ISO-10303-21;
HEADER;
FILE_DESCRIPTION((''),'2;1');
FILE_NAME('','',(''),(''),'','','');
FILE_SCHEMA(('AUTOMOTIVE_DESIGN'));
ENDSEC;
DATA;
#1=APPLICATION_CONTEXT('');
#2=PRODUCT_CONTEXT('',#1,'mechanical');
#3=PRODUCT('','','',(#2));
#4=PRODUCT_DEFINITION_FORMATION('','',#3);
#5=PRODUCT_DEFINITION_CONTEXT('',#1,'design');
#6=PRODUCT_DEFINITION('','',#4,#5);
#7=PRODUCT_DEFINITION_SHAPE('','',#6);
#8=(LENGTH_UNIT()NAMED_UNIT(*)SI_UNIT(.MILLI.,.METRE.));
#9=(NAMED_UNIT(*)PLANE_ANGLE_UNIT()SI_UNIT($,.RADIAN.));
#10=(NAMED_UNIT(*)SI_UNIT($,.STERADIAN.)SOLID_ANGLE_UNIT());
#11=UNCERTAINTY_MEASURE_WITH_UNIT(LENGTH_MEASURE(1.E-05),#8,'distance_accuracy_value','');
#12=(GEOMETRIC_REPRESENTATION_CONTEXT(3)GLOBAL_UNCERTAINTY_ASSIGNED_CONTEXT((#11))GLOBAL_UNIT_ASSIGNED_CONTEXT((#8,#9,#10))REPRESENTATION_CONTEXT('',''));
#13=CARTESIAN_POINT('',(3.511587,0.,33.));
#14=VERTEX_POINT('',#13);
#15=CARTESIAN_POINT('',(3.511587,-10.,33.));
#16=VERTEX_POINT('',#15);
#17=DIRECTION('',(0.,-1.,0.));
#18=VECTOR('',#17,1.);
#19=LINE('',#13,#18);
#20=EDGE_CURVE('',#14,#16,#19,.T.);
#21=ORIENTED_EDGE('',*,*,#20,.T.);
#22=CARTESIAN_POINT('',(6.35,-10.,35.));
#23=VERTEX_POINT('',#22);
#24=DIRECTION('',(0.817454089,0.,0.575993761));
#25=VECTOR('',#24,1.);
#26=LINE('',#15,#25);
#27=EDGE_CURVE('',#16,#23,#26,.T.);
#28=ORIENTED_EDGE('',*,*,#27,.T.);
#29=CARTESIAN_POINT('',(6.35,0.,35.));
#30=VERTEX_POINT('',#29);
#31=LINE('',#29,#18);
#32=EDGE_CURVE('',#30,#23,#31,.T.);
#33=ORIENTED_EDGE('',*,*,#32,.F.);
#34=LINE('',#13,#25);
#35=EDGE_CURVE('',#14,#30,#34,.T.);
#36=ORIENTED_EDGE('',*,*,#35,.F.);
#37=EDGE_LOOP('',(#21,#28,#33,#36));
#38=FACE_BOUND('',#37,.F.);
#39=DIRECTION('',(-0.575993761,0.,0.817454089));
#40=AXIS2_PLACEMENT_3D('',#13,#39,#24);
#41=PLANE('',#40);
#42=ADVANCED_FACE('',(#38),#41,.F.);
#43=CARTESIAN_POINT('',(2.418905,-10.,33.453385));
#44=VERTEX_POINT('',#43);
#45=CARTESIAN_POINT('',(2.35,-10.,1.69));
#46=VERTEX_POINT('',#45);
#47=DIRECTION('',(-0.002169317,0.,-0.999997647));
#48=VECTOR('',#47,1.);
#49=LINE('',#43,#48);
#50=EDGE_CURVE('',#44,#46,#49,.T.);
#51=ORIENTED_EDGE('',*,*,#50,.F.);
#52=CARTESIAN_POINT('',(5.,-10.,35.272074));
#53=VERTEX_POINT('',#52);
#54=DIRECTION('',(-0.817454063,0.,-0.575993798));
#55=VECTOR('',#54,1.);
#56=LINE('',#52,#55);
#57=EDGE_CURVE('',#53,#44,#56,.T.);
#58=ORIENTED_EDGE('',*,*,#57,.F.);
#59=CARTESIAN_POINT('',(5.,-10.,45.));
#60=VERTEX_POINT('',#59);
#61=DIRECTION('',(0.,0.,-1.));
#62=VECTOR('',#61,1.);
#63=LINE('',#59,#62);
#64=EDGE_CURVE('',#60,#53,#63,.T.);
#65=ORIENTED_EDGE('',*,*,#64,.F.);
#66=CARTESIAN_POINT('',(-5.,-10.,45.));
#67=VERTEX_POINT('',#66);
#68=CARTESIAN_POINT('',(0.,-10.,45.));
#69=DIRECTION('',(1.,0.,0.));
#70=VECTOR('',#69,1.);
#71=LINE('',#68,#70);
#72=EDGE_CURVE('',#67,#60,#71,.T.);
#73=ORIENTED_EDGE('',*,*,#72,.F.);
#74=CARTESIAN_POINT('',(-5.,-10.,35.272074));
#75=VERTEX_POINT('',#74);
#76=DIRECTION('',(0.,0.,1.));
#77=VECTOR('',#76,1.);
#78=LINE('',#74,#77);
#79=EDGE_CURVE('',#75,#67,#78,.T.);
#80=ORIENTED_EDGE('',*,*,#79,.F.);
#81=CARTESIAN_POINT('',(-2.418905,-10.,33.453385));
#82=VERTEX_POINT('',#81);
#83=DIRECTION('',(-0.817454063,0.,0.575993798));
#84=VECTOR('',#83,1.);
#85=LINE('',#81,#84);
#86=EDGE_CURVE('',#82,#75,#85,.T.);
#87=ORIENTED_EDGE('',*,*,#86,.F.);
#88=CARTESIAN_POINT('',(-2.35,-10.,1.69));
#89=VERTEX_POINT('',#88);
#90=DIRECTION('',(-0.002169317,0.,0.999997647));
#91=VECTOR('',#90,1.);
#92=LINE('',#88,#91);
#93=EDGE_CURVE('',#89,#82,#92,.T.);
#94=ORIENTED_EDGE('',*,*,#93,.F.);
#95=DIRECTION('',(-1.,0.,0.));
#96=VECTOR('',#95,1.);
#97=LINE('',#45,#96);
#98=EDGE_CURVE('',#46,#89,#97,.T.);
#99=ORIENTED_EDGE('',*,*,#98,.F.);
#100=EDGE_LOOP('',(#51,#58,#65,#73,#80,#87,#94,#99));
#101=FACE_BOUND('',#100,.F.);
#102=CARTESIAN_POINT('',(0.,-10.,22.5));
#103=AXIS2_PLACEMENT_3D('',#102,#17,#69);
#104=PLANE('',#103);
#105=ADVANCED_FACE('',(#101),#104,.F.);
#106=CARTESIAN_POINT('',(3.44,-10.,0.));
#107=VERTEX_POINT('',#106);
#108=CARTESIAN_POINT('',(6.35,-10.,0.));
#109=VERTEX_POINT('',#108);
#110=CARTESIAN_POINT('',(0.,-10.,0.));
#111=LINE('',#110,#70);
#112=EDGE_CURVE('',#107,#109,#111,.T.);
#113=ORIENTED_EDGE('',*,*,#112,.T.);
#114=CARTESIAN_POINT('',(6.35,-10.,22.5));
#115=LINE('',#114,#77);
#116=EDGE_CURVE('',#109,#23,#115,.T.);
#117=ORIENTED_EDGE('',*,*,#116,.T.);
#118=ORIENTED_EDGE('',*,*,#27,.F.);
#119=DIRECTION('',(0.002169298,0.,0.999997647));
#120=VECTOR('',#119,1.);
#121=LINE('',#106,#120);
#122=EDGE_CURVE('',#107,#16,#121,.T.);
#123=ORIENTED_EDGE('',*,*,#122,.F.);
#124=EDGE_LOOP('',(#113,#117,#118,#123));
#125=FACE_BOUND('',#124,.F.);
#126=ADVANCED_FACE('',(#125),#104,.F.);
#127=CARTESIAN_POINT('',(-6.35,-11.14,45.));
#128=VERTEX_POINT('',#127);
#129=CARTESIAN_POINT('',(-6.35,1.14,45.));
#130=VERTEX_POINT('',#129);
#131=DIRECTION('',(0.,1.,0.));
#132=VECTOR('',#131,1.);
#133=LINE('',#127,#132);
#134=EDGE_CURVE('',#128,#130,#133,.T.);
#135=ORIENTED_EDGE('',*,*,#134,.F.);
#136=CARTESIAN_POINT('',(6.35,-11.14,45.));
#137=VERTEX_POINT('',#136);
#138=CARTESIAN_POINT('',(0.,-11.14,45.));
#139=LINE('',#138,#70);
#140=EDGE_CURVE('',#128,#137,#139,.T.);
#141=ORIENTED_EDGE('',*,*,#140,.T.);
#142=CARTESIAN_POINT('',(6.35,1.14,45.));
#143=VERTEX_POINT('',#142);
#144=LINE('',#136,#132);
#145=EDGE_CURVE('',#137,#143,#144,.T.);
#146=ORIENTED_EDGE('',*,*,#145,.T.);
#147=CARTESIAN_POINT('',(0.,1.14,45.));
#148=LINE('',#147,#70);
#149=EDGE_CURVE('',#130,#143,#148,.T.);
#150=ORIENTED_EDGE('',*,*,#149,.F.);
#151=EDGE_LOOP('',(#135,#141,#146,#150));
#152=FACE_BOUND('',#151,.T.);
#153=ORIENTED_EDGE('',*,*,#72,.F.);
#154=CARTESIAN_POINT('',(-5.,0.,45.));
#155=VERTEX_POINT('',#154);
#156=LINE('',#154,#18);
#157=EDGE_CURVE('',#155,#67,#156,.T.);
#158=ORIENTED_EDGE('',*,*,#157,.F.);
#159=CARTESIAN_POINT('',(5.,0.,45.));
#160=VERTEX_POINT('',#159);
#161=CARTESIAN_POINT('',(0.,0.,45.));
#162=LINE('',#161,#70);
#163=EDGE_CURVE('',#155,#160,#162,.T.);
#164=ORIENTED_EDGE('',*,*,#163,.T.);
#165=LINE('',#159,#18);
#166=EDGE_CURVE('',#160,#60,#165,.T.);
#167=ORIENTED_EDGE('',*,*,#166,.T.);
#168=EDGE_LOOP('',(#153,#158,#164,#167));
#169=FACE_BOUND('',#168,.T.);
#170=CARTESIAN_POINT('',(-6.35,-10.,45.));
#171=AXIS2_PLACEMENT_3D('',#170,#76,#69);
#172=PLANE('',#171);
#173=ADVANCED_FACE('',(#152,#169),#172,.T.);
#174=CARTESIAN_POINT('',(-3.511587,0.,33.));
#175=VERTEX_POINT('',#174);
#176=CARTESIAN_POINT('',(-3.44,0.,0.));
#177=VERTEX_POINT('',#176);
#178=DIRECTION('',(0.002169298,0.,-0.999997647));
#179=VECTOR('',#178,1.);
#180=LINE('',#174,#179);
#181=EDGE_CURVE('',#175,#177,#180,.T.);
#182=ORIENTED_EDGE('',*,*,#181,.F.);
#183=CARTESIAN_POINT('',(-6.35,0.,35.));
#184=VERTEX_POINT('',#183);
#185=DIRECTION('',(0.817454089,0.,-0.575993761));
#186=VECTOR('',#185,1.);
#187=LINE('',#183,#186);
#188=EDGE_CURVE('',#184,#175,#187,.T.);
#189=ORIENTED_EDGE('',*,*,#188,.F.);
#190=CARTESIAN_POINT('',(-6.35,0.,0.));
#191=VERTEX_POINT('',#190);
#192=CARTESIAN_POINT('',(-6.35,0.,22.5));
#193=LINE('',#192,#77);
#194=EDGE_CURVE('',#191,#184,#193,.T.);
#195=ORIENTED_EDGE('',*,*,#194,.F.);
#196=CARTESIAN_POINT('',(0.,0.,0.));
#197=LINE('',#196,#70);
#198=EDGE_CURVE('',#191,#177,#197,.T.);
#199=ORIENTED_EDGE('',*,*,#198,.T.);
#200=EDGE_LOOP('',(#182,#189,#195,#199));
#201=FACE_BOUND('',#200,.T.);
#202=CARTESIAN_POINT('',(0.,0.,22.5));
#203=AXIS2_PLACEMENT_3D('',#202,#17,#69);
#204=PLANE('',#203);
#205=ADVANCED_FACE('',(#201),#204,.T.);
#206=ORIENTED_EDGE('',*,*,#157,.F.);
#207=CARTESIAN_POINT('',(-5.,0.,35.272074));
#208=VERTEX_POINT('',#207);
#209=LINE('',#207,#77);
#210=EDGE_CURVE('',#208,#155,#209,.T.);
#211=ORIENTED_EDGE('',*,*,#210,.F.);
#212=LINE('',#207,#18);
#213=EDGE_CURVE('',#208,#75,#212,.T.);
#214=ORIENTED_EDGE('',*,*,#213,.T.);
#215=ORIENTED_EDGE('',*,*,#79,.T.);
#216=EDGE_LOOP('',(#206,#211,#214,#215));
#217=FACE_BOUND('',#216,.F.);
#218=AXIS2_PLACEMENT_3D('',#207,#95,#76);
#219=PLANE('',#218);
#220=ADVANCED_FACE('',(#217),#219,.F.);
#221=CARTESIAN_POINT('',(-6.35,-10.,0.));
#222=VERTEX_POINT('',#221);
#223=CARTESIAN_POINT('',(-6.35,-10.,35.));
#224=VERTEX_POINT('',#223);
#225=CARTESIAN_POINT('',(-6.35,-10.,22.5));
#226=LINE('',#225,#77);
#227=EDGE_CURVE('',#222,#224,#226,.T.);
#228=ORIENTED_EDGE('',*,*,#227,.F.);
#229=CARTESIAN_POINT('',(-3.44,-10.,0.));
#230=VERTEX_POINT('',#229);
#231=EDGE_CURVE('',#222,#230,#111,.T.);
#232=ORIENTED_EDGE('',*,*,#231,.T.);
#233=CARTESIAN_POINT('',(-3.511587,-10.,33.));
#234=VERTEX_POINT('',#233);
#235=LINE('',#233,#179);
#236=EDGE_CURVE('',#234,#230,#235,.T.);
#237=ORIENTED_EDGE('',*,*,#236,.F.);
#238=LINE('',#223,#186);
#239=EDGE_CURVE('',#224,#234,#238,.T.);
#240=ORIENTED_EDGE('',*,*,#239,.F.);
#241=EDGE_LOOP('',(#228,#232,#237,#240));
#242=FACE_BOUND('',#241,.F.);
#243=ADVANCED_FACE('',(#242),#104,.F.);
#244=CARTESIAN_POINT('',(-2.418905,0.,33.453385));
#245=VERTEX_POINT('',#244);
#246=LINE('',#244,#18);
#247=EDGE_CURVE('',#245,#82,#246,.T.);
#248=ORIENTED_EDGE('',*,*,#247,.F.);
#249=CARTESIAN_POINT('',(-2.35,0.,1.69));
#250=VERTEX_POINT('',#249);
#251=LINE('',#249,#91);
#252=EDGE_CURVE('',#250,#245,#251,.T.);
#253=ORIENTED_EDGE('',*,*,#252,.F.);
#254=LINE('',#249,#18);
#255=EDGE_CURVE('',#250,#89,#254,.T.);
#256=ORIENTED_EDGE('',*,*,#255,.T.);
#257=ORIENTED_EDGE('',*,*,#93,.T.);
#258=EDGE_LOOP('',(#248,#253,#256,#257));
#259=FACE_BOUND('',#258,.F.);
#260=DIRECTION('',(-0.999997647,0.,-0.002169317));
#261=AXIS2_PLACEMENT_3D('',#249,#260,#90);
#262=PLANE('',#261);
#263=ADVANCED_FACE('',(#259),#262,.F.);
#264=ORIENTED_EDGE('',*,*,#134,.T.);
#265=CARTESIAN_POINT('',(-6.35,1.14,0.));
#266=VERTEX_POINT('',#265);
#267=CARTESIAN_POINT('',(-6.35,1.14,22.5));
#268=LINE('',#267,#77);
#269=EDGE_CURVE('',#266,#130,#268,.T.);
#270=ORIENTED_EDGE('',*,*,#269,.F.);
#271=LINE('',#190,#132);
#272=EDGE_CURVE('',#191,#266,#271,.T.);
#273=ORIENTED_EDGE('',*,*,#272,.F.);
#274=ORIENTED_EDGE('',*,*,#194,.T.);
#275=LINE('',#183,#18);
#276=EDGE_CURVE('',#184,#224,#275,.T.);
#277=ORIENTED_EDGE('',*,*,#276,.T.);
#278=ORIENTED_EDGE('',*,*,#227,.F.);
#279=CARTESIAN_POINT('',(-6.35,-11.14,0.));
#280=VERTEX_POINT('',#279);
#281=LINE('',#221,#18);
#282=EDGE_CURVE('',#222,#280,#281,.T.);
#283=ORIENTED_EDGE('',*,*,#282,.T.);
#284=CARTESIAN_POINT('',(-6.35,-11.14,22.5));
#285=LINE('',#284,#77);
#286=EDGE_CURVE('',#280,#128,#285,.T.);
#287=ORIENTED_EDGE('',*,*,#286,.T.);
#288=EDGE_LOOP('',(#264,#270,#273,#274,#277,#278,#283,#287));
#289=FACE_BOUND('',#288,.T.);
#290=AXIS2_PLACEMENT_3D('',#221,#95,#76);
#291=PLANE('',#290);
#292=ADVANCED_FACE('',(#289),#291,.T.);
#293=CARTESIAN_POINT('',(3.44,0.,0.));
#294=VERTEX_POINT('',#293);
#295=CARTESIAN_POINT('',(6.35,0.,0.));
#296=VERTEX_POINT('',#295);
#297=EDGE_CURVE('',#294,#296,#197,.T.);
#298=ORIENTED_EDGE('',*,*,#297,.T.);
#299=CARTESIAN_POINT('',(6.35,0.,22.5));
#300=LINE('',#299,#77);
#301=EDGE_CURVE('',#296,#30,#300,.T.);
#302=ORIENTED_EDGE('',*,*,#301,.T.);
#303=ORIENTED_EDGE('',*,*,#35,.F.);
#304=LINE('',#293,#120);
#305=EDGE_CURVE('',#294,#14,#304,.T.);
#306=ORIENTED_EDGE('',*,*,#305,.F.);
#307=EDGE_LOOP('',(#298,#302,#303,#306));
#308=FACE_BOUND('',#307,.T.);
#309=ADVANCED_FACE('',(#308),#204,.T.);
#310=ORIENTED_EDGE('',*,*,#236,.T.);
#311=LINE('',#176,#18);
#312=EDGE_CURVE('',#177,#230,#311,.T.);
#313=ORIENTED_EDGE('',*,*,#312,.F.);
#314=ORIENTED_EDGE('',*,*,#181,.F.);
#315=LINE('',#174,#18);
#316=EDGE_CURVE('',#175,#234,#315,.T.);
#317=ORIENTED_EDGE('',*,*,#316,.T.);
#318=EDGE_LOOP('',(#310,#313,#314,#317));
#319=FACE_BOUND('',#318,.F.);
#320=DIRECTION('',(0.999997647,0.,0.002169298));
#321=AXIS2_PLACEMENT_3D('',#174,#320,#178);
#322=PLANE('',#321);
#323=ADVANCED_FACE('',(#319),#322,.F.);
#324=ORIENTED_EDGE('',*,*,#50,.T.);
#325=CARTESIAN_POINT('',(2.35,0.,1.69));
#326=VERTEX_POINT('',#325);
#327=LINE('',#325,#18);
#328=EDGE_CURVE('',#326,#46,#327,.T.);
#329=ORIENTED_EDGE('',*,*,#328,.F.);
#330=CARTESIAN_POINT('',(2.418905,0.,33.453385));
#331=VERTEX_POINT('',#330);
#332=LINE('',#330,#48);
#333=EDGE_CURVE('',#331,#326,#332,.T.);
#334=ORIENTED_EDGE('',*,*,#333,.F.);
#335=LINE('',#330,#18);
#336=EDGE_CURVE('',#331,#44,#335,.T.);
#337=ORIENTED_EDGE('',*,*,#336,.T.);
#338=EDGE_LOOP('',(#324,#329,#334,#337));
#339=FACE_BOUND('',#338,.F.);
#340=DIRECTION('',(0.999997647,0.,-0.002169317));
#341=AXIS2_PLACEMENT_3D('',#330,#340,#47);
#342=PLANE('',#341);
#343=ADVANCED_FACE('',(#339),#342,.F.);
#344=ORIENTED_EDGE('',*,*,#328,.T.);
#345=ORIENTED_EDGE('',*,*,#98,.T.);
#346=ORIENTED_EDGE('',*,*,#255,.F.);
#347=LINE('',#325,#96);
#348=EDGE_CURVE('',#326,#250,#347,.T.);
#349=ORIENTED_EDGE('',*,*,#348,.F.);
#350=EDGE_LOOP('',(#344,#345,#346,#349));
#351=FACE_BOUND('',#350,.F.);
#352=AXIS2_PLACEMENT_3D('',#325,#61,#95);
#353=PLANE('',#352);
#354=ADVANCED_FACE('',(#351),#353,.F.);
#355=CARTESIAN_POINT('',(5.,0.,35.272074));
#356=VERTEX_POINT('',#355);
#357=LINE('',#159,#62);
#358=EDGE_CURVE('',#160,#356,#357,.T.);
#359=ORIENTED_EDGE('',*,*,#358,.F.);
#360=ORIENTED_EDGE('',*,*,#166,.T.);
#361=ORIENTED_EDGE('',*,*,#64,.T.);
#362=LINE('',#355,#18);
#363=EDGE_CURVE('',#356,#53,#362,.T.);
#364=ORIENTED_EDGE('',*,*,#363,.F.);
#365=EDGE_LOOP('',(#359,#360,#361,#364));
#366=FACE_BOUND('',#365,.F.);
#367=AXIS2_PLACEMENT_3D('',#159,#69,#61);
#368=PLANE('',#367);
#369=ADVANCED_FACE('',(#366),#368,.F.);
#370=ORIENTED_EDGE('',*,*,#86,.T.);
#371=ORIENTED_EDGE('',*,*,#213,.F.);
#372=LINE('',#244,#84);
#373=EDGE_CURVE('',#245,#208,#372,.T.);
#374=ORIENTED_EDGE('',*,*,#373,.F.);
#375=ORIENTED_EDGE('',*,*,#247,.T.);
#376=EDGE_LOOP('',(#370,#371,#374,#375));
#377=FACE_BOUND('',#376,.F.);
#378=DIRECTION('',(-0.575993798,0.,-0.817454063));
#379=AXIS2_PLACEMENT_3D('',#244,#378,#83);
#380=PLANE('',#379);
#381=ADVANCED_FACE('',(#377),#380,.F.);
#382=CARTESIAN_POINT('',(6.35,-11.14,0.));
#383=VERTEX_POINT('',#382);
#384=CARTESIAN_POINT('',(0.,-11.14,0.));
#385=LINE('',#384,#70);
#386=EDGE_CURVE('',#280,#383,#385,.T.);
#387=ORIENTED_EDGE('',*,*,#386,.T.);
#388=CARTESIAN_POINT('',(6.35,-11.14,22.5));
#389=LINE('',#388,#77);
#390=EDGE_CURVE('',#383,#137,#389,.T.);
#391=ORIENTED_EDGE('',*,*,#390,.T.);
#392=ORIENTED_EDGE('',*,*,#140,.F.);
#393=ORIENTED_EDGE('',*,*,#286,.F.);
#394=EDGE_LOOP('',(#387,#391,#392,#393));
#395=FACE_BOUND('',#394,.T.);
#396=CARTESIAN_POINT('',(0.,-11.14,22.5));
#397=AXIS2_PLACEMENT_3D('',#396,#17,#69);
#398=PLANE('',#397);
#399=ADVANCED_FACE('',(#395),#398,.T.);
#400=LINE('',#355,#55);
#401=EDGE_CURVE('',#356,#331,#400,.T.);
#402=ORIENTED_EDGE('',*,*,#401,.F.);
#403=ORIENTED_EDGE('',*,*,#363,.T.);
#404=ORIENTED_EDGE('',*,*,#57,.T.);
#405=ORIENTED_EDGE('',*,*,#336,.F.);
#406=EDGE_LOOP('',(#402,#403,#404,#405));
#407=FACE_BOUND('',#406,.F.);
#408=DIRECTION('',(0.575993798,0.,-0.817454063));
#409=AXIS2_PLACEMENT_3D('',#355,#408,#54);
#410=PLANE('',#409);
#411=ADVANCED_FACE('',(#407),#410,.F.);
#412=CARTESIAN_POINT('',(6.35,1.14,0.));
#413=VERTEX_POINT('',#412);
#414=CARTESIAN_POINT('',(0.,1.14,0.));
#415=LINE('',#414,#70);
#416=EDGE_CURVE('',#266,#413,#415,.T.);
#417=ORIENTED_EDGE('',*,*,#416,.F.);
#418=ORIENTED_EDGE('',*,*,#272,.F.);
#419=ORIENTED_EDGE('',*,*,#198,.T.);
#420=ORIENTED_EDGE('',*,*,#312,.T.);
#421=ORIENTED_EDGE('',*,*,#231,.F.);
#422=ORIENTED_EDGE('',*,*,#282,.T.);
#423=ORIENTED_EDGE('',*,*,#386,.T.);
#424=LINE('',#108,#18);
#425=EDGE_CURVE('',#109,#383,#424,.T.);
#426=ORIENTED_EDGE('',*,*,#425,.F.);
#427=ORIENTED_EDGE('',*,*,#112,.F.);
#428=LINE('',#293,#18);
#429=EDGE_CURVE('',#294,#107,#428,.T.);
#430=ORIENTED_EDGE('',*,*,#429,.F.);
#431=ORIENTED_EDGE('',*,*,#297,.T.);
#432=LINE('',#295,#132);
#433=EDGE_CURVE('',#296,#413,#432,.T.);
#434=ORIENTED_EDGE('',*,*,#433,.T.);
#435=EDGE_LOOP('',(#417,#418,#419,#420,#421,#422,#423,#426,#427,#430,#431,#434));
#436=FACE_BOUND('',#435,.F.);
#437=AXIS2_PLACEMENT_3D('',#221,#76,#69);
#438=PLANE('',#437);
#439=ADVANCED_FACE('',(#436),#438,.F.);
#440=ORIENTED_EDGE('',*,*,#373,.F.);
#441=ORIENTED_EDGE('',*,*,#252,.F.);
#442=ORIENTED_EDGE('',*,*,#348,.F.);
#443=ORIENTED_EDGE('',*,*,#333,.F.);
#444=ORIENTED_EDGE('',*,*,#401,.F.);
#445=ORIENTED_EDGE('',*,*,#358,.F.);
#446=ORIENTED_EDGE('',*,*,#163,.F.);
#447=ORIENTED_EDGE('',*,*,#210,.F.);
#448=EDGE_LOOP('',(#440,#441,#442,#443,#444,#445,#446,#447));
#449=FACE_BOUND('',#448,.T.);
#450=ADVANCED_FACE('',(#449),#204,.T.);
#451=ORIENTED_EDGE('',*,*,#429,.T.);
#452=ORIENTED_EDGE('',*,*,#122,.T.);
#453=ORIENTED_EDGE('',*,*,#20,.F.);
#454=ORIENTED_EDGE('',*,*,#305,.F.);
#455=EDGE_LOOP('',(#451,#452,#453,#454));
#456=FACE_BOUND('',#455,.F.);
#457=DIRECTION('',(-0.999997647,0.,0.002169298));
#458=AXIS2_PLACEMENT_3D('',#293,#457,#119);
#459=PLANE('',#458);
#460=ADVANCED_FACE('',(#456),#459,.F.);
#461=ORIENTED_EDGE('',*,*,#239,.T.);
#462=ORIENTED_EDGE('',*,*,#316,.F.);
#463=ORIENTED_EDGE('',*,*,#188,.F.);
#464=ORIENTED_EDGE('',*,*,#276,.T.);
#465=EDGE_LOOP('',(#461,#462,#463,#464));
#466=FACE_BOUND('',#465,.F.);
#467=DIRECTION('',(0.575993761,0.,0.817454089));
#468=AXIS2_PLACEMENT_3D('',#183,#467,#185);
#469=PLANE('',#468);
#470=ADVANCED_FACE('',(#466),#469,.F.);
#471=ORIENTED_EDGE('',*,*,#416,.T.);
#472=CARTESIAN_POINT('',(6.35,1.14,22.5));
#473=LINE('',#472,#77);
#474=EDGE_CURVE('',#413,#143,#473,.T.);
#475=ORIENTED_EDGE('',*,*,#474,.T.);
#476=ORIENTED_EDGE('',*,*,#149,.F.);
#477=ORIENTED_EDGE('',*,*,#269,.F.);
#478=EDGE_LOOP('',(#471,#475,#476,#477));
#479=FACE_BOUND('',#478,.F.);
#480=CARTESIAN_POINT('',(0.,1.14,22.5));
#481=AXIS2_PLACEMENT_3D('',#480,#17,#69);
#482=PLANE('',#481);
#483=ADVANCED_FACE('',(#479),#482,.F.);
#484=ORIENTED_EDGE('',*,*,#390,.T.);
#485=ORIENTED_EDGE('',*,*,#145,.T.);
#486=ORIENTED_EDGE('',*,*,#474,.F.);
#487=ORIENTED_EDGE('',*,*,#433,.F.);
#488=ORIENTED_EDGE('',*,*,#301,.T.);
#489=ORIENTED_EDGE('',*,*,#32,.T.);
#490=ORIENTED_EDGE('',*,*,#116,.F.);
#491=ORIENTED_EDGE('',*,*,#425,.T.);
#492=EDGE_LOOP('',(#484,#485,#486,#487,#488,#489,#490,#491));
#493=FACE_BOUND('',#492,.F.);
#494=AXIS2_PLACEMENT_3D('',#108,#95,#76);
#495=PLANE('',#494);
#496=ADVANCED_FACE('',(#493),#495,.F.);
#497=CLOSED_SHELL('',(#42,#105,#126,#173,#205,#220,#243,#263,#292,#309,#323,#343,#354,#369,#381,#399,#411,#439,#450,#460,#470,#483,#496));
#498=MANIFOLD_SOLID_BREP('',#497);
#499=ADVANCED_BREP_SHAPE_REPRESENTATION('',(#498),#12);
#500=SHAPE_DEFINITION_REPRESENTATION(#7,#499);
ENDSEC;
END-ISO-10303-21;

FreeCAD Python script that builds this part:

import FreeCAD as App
import Part
import Sketcher


def add_polygon(sketch, points):
    """Adds a closed chain of lines whose ends are joined by coincident constraints."""
    first, n = sketch.GeometryCount, len(points)
    for a, b in zip(points, points[1:] + points[:1]):
        sketch.addGeometry(Part.LineSegment(App.Vector(*a, 0), App.Vector(*b, 0)), False)
    for i in range(n):
        sketch.addConstraint(Sketcher.Constraint("Coincident", first + i, 2, first + (i + 1) % n, 1))

doc = App.newDocument("Part")
body = doc.addObject("PartDesign::Body", "Body")

# Sketch on XZ plane
sketch1 = doc.addObject("Sketcher::SketchObject", "Sketch")
body.addObject(sketch1)
sketch1.AttachmentSupport = (doc.XZ_Plane, [""])
sketch1.MapMode = "FlatFace"
add_polygon(sketch1, [(-5, 45), (-6.35, 45), (-6.35, 35), (-3.511587, 33), (-3.44, 0), (3.44, 0), (3.511587, 33), (6.35, 35), (6.35, 45), (5, 45), (5, 35.272074), (2.418905, 33.453385), (2.35, 1.69), (-2.35, 1.69), (-2.418905, 33.453385), (-5, 35.272074)])  # lines 0-15
sketch1.addConstraint([
    Sketcher.Constraint("Horizontal", 0),
    Sketcher.Constraint("Vertical", 1),
    Sketcher.Constraint("Horizontal", 4),
    Sketcher.Constraint("Vertical", 7),
    Sketcher.Constraint("Horizontal", 8),
    Sketcher.Constraint("Vertical", 9),
    Sketcher.Constraint("Horizontal", 12),
    Sketcher.Constraint("Vertical", 15),
    Sketcher.Constraint("Symmetric", 3, 2, 4, 2, -1, 1),
    Sketcher.Constraint("Symmetric", 2, 2, 5, 2, -2),
    Sketcher.Constraint("Symmetric", 1, 2, 6, 2, -2),
    Sketcher.Constraint("Symmetric", 10, 2, 13, 2, -2),
    Sketcher.Constraint("Symmetric", 9, 2, 14, 2, -2),
    Sketcher.Constraint("Parallel", 6, 10),
    Sketcher.Constraint("Parallel", 5, 11),
    Sketcher.Constraint("Parallel", 3, 13),
    Sketcher.Constraint("Horizontal", 0, 2, 7, 2),
    Sketcher.Constraint("DistanceY", 1, 2, 1, 1, 10.0),
    Sketcher.Constraint("DistanceX", 12, 2, 12, 1, 4.7),
    Sketcher.Constraint("DistanceY", -1, 1, 0, 2, 45.0),
    Sketcher.Constraint("DistanceY", -1, 1, 2, 2, 33.0),
    Sketcher.Constraint("DistanceX", -1, 1, 8, 2, 5.0),
    Sketcher.Constraint("DistanceX", 0, 2, 0, 1, 1.35),
    Sketcher.Constraint("DistanceX", 4, 1, 4, 2, 6.88),
    Sketcher.Constraint("DistanceY", -1, 1, 11, 2, 1.69),
    Sketcher.Constraint("Distance", 2, 3.47226),
    Sketcher.Constraint("Distance", 11, 31.76346),
])
pad1 = doc.addObject("PartDesign::Pad", "Pad")
body.addObject(pad1)
pad1.Profile = sketch1
pad1.Length = 10

# Sketch on XZ plane
sketch2 = doc.addObject("Sketcher::SketchObject", "Sketch001")
body.addObject(sketch2)
sketch2.AttachmentSupport = (doc.XZ_Plane, [""])
sketch2.MapMode = "FlatFace"
add_polygon(sketch2, [(-6.35, 45), (-6.35, 0), (6.35, 0), (6.35, 45)])  # lines 0-3
sketch2.addConstraint([
    Sketcher.Constraint("Vertical", 0),
    Sketcher.Constraint("Horizontal", 1),
    Sketcher.Constraint("Vertical", 2),
    Sketcher.Constraint("Horizontal", 3),
    Sketcher.Constraint("Symmetric", 0, 2, 1, 2, -1, 1),
    Sketcher.Constraint("DistanceY", 0, 2, 0, 1, 45.0),
    Sketcher.Constraint("DistanceX", 1, 1, 1, 2, 12.7),
])
pad2 = doc.addObject("PartDesign::Pad", "Pad001")
body.addObject(pad2)
pad2.Profile = sketch2
pad2.Length = 1.14
pad2.Reversed = True

# Sketch on XZ plane
sketch3 = doc.addObject("Sketcher::SketchObject", "Sketch002")
body.addObject(sketch3)
sketch3.AttachmentSupport = (doc.XZ_Plane, [""])
sketch3.MapMode = "FlatFace"
sketch3.AttachmentOffset = App.Placement(App.Vector(0, 0, 10), App.Rotation())
add_polygon(sketch3, [(-6.35, 45), (-6.35, 0), (6.35, 0), (6.35, 45)])  # lines 0-3
sketch3.addConstraint([
    Sketcher.Constraint("Vertical", 0),
    Sketcher.Constraint("Horizontal", 1),
    Sketcher.Constraint("Vertical", 2),
    Sketcher.Constraint("Horizontal", 3),
    Sketcher.Constraint("Symmetric", 0, 2, 1, 2, -1, 1),
    Sketcher.Constraint("DistanceY", 0, 2, 0, 1, 45.0),
    Sketcher.Constraint("DistanceX", 1, 1, 1, 2, 12.7),
])
pad3 = doc.addObject("PartDesign::Pad", "Pad002")
body.addObject(pad3)
pad3.Profile = sketch3
pad3.Length = 1.14

doc.recompute()
